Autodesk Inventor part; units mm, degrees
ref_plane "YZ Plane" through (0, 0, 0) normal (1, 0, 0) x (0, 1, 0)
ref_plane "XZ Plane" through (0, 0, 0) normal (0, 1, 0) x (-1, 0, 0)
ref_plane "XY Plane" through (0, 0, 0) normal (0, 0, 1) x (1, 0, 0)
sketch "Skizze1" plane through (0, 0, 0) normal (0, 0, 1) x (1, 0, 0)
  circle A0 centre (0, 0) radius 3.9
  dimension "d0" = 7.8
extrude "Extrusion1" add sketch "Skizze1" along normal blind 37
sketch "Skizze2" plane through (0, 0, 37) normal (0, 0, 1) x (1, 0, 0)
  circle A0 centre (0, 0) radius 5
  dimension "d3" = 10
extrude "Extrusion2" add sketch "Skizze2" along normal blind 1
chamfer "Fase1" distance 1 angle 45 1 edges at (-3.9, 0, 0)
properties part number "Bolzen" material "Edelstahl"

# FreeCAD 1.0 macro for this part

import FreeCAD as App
import Part
import Sketcher

V = App.Vector
Q = App.Units.Quantity


def edges_at(feature, points):
    """Names of the edges that pass closest to the given points."""
    edges = feature.Shape.Edges
    near = lambda p: min(range(len(edges)), key=lambda i: edges[i].distToShape(Part.Vertex(*p))[0])
    return sorted({f"Edge{near(p) + 1}" for p in points})

doc = App.newDocument("Part")
body = doc.addObject("PartDesign::Body", "Body")

sketch1 = doc.addObject("Sketcher::SketchObject", "Sketch")
body.addObject(sketch1)
sketch1.AttachmentSupport = (doc.XY_Plane, [""])
sketch1.MapMode = "FlatFace"
sketch1.addGeometry(Part.Circle(V(0, 0, 0), V(0, 0, 1), 3.9), False)
sketch1.addConstraint(Sketcher.Constraint("Coincident", 0, 3, -1, 1))
sketch1.addConstraint(Sketcher.Constraint("Diameter", 0, Q("7.8 mm")))
pad1 = doc.addObject("PartDesign::Pad", "Pad")
body.addObject(pad1)
pad1.Profile = sketch1
pad1.Length = 37

sketch2 = doc.addObject("Sketcher::SketchObject", "Sketch001")
body.addObject(sketch2)
sketch2.AttachmentSupport = (doc.XY_Plane, [""])
sketch2.MapMode = "FlatFace"
sketch2.AttachmentOffset = App.Placement(V(0, 0, 37), App.Rotation())
sketch2.addGeometry(Part.Circle(V(0, 0, 0), V(0, 0, 1), 5), False)
sketch2.addConstraint(Sketcher.Constraint("Coincident", 0, 3, -1, 1))
sketch2.addConstraint(Sketcher.Constraint("Diameter", 0, Q("10 mm")))
pad2 = doc.addObject("PartDesign::Pad", "Pad001")
body.addObject(pad2)
pad2.Profile = sketch2
pad2.Length = 1
doc.recompute()

chamfer = doc.addObject("PartDesign::Chamfer", "Chamfer")
body.addObject(chamfer)
chamfer.Base = (pad2, edges_at(pad2, [(-3.9, 0, 0)]))
chamfer.Size = 1

doc.recompute()
